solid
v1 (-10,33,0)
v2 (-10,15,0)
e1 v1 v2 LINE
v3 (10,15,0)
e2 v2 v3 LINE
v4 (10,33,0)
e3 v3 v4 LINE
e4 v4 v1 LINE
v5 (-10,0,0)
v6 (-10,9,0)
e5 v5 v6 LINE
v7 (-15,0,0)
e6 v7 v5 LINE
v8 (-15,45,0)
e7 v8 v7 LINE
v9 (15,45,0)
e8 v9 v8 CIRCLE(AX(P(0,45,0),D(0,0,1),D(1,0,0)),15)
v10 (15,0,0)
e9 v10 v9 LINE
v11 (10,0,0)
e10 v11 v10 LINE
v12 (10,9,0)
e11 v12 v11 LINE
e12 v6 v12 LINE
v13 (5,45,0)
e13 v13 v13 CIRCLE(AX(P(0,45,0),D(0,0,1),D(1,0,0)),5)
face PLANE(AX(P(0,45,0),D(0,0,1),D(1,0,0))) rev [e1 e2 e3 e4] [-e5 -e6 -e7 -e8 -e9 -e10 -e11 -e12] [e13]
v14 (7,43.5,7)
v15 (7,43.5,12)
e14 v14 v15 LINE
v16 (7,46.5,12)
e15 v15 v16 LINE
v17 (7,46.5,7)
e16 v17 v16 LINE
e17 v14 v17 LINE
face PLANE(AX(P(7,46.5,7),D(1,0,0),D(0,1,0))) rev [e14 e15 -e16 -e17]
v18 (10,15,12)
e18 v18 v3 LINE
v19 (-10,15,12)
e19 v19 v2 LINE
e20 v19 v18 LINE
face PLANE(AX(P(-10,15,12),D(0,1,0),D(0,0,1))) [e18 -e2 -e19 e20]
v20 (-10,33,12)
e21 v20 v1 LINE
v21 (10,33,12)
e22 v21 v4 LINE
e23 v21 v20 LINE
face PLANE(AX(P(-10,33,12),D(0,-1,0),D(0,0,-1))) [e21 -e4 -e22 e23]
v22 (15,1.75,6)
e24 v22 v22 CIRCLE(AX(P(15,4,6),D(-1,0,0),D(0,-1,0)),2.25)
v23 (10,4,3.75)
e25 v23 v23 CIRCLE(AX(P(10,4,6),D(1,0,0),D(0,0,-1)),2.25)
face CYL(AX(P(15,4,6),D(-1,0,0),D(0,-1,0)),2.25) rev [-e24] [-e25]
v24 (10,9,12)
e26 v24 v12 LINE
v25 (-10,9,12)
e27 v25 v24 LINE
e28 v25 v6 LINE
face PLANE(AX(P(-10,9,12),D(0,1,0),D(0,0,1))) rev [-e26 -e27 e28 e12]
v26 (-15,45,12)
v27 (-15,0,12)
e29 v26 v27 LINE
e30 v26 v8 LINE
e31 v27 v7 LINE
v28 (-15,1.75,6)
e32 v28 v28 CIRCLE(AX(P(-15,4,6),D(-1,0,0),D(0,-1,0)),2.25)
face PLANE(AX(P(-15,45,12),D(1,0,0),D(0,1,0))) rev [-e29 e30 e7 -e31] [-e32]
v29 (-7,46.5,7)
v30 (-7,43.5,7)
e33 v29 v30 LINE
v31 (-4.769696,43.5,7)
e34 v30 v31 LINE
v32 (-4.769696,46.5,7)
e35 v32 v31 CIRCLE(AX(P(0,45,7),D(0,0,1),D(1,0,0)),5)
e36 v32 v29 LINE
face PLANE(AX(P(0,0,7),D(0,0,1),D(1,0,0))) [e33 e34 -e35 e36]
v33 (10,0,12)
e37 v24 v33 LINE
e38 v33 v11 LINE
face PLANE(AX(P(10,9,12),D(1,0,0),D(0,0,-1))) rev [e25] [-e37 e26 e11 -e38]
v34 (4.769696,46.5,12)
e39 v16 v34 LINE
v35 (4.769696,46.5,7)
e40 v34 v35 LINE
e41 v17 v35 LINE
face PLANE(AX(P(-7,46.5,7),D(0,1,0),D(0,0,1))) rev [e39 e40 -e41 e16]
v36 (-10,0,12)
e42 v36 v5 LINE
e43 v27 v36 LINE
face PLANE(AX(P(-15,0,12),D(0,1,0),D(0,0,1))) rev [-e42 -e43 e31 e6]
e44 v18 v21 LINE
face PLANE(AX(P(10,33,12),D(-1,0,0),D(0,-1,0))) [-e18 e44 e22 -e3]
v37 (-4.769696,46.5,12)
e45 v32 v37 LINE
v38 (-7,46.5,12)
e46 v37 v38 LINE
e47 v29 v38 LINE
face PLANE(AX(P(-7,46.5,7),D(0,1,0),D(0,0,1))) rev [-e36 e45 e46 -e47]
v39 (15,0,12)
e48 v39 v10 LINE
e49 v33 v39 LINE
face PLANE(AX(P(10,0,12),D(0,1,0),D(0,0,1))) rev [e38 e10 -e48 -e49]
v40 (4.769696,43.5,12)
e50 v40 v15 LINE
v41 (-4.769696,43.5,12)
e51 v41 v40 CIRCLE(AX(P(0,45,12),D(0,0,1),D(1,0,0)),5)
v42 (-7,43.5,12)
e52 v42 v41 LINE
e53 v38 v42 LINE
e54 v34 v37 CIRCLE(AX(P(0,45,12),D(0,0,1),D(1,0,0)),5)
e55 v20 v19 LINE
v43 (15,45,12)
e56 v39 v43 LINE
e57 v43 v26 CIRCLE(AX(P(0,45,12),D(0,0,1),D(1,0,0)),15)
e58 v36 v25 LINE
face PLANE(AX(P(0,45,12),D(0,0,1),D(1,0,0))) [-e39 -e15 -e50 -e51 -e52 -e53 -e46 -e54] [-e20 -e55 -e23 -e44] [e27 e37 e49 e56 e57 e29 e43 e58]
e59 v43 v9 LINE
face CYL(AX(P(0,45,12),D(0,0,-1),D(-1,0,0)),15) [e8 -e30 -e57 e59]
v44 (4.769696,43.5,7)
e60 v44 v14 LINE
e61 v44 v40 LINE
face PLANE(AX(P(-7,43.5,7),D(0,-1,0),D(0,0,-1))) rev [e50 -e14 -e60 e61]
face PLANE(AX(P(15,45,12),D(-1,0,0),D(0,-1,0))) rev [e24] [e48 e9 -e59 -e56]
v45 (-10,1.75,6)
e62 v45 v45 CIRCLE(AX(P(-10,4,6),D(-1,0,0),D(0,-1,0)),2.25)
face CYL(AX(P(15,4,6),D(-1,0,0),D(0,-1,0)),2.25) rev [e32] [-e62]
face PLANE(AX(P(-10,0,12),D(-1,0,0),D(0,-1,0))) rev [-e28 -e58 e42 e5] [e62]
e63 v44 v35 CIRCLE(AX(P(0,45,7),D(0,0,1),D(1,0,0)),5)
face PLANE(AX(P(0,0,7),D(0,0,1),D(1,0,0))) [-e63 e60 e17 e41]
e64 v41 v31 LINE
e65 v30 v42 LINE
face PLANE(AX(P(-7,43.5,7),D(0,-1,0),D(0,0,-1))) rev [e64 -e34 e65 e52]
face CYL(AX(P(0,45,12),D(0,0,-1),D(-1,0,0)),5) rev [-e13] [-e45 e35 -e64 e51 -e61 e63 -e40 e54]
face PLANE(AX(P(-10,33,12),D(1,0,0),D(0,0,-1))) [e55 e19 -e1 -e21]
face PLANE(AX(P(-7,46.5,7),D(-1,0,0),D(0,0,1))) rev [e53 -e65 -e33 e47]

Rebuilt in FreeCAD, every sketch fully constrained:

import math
import FreeCAD as App
import Part
import Sketcher

V = App.Vector
Q = App.Units.Quantity

doc = App.newDocument("Part")
body = doc.addObject("PartDesign::Body", "Body")

# Sketch on XY plane
sketch1 = doc.addObject("Sketcher::SketchObject", "Sketch")
body.addObject(sketch1)
sketch1.AttachmentSupport = (doc.XY_Plane, [""])
sketch1.MapMode = "FlatFace"
sketch1.addGeometry([
    Part.LineSegment(V(15, 0, 0), V(15, 45, 0)),  # 0
    Part.ArcOfCircle(Part.Circle(V(0, 45, 0), V(0, 0, 1), 15), math.radians(0), math.radians(180)),  # 1
    Part.LineSegment(V(-15, 45, 0), V(-15, 0, 0)),  # 2
    Part.LineSegment(V(-15, 0, 0), V(-10, 0, 0)),  # 3
    Part.LineSegment(V(-10, 0, 0), V(-10, 9, 0)),  # 4
    Part.LineSegment(V(-10, 9, 0), V(10, 9, 0)),  # 5
    Part.LineSegment(V(10, 9, 0), V(10, 0, 0)),  # 6
    Part.LineSegment(V(10, 0, 0), V(15, 0, 0)),  # 7
    Part.LineSegment(V(-10, 15, 0), V(-10, 33, 0)),  # 8
    Part.LineSegment(V(-10, 33, 0), V(10, 33, 0)),  # 9
    Part.LineSegment(V(10, 33, 0), V(10, 15, 0)),  # 10
    Part.LineSegment(V(10, 15, 0), V(-10, 15, 0)),  # 11
    Part.Circle(V(0, 45, 0), V(0, 0, 1), 5),  # 12
], False)
sketch1.addConstraint([
    Sketcher.Constraint("Tangent", 0, 2, 1, 1),
    Sketcher.Constraint("Tangent", 1, 2, 2, 1),
    Sketcher.Constraint("Coincident", 2, 2, 3, 1),
    Sketcher.Constraint("Coincident", 3, 2, 4, 1),
    Sketcher.Constraint("Coincident", 4, 2, 5, 1),
    Sketcher.Constraint("Coincident", 5, 2, 6, 1),
    Sketcher.Constraint("Coincident", 6, 2, 7, 1),
    Sketcher.Constraint("Coincident", 7, 2, 0, 1),
    Sketcher.Constraint("Coincident", 8, 2, 9, 1),
    Sketcher.Constraint("Coincident", 9, 2, 10, 1),
    Sketcher.Constraint("Coincident", 10, 2, 11, 1),
    Sketcher.Constraint("Coincident", 11, 2, 8, 1),
    Sketcher.Constraint("Vertical", 0),
    Sketcher.Constraint("Vertical", 2),
    Sketcher.Constraint("Horizontal", 3),
    Sketcher.Constraint("Vertical", 4),
    Sketcher.Constraint("Horizontal", 5),
    Sketcher.Constraint("Vertical", 6),
    Sketcher.Constraint("Horizontal", 7),
    Sketcher.Constraint("Vertical", 8),
    Sketcher.Constraint("Horizontal", 9),
    Sketcher.Constraint("Vertical", 10),
    Sketcher.Constraint("Horizontal", 11),
    Sketcher.Constraint("Coincident", 12, 3, 1, 3),
    Sketcher.Constraint("Symmetric", 3, 2, 6, 2, -1, 1),
    Sketcher.Constraint("Symmetric", 2, 2, 7, 2, -2),
    Sketcher.Constraint("Vertical", 4, 2, 8, 2),
    Sketcher.Constraint("Vertical", 6, 2, 9, 2),
    Sketcher.Constraint("Diameter", 12, Q("10 mm")),
    Sketcher.Constraint("Radius", 1, Q("15 mm")),
    Sketcher.Constraint("DistanceX", 3, 1, 3, 2, Q("5 mm")),
    Sketcher.Constraint("DistanceY", 0, 1, 0, 2, Q("45 mm")),
    Sketcher.Constraint("DistanceY", 4, 1, 4, 2, Q("9 mm")),
    Sketcher.Constraint("DistanceY", 8, 1, 8, 2, Q("18 mm")),
    Sketcher.Constraint("DistanceY", -1, 1, 8, 2, Q("33 mm")),
])
pad1 = doc.addObject("PartDesign::Pad", "Pad")
body.addObject(pad1)
pad1.Profile = sketch1
pad1.Length = 12

# Sketch on YZ plane
sketch2 = doc.addObject("Sketcher::SketchObject", "Sketch001")
body.addObject(sketch2)
sketch2.AttachmentSupport = (doc.YZ_Plane, [""])
sketch2.MapMode = "FlatFace"
sketch2.AttachmentOffset = App.Placement(V(0, 0, -15), App.Rotation())
sketch2.addGeometry(Part.Circle(V(4, 6, 0), V(0, 0, 1), 2.25), False)
sketch2.addConstraint([
    Sketcher.Constraint("Diameter", 0, Q("4.5 mm")),
    Sketcher.Constraint("DistanceX", -1, 1, 0, 3, Q("4 mm")),
    Sketcher.Constraint("DistanceY", -1, 1, 0, 3, Q("6 mm")),
])
pocket1 = doc.addObject("PartDesign::Pocket", "Pocket")
body.addObject(pocket1)
pocket1.Profile = sketch2
pocket1.Type = "ThroughAll"
pocket1.Reversed = True

# Sketch on XY plane
sketch3 = doc.addObject("Sketcher::SketchObject", "Sketch002")
body.addObject(sketch3)
sketch3.AttachmentSupport = (doc.XY_Plane, [""])
sketch3.MapMode = "FlatFace"
sketch3.AttachmentOffset = App.Placement(V(0, 0, 12), App.Rotation())
sketch3.addGeometry([
    Part.LineSegment(V(-7, 46.5, 0), V(-7, 43.5, 0)),
    Part.LineSegment(V(-7, 43.5, 0), V(7, 43.5, 0)),
    Part.LineSegment(V(7, 43.5, 0), V(7, 46.5, 0)),
    Part.LineSegment(V(7, 46.5, 0), V(-7, 46.5, 0)),
], False)
sketch3.addConstraint([
    Sketcher.Constraint("Coincident", 0, 2, 1, 1),
    Sketcher.Constraint("Coincident", 1, 2, 2, 1),
    Sketcher.Constraint("Coincident", 2, 2, 3, 1),
    Sketcher.Constraint("Coincident", 3, 2, 0, 1),
    Sketcher.Constraint("Vertical", 0),
    Sketcher.Constraint("Horizontal", 1),
    Sketcher.Constraint("Vertical", 2),
    Sketcher.Constraint("Horizontal", 3),
    Sketcher.Constraint("DistanceX", 1, 1, 1, 2, Q("14 mm")),
    Sketcher.Constraint("DistanceY", 0, 2, 0, 1, Q("3 mm")),
    Sketcher.Constraint("DistanceX", 0, 2, -1, 1, Q("7 mm")),
    Sketcher.Constraint("DistanceY", -1, 1, 0, 2, Q("43.5 mm")),
])
pocket2 = doc.addObject("PartDesign::Pocket", "Pocket001")
body.addObject(pocket2)
pocket2.Profile = sketch3
pocket2.Length = 5

doc.recompute()
